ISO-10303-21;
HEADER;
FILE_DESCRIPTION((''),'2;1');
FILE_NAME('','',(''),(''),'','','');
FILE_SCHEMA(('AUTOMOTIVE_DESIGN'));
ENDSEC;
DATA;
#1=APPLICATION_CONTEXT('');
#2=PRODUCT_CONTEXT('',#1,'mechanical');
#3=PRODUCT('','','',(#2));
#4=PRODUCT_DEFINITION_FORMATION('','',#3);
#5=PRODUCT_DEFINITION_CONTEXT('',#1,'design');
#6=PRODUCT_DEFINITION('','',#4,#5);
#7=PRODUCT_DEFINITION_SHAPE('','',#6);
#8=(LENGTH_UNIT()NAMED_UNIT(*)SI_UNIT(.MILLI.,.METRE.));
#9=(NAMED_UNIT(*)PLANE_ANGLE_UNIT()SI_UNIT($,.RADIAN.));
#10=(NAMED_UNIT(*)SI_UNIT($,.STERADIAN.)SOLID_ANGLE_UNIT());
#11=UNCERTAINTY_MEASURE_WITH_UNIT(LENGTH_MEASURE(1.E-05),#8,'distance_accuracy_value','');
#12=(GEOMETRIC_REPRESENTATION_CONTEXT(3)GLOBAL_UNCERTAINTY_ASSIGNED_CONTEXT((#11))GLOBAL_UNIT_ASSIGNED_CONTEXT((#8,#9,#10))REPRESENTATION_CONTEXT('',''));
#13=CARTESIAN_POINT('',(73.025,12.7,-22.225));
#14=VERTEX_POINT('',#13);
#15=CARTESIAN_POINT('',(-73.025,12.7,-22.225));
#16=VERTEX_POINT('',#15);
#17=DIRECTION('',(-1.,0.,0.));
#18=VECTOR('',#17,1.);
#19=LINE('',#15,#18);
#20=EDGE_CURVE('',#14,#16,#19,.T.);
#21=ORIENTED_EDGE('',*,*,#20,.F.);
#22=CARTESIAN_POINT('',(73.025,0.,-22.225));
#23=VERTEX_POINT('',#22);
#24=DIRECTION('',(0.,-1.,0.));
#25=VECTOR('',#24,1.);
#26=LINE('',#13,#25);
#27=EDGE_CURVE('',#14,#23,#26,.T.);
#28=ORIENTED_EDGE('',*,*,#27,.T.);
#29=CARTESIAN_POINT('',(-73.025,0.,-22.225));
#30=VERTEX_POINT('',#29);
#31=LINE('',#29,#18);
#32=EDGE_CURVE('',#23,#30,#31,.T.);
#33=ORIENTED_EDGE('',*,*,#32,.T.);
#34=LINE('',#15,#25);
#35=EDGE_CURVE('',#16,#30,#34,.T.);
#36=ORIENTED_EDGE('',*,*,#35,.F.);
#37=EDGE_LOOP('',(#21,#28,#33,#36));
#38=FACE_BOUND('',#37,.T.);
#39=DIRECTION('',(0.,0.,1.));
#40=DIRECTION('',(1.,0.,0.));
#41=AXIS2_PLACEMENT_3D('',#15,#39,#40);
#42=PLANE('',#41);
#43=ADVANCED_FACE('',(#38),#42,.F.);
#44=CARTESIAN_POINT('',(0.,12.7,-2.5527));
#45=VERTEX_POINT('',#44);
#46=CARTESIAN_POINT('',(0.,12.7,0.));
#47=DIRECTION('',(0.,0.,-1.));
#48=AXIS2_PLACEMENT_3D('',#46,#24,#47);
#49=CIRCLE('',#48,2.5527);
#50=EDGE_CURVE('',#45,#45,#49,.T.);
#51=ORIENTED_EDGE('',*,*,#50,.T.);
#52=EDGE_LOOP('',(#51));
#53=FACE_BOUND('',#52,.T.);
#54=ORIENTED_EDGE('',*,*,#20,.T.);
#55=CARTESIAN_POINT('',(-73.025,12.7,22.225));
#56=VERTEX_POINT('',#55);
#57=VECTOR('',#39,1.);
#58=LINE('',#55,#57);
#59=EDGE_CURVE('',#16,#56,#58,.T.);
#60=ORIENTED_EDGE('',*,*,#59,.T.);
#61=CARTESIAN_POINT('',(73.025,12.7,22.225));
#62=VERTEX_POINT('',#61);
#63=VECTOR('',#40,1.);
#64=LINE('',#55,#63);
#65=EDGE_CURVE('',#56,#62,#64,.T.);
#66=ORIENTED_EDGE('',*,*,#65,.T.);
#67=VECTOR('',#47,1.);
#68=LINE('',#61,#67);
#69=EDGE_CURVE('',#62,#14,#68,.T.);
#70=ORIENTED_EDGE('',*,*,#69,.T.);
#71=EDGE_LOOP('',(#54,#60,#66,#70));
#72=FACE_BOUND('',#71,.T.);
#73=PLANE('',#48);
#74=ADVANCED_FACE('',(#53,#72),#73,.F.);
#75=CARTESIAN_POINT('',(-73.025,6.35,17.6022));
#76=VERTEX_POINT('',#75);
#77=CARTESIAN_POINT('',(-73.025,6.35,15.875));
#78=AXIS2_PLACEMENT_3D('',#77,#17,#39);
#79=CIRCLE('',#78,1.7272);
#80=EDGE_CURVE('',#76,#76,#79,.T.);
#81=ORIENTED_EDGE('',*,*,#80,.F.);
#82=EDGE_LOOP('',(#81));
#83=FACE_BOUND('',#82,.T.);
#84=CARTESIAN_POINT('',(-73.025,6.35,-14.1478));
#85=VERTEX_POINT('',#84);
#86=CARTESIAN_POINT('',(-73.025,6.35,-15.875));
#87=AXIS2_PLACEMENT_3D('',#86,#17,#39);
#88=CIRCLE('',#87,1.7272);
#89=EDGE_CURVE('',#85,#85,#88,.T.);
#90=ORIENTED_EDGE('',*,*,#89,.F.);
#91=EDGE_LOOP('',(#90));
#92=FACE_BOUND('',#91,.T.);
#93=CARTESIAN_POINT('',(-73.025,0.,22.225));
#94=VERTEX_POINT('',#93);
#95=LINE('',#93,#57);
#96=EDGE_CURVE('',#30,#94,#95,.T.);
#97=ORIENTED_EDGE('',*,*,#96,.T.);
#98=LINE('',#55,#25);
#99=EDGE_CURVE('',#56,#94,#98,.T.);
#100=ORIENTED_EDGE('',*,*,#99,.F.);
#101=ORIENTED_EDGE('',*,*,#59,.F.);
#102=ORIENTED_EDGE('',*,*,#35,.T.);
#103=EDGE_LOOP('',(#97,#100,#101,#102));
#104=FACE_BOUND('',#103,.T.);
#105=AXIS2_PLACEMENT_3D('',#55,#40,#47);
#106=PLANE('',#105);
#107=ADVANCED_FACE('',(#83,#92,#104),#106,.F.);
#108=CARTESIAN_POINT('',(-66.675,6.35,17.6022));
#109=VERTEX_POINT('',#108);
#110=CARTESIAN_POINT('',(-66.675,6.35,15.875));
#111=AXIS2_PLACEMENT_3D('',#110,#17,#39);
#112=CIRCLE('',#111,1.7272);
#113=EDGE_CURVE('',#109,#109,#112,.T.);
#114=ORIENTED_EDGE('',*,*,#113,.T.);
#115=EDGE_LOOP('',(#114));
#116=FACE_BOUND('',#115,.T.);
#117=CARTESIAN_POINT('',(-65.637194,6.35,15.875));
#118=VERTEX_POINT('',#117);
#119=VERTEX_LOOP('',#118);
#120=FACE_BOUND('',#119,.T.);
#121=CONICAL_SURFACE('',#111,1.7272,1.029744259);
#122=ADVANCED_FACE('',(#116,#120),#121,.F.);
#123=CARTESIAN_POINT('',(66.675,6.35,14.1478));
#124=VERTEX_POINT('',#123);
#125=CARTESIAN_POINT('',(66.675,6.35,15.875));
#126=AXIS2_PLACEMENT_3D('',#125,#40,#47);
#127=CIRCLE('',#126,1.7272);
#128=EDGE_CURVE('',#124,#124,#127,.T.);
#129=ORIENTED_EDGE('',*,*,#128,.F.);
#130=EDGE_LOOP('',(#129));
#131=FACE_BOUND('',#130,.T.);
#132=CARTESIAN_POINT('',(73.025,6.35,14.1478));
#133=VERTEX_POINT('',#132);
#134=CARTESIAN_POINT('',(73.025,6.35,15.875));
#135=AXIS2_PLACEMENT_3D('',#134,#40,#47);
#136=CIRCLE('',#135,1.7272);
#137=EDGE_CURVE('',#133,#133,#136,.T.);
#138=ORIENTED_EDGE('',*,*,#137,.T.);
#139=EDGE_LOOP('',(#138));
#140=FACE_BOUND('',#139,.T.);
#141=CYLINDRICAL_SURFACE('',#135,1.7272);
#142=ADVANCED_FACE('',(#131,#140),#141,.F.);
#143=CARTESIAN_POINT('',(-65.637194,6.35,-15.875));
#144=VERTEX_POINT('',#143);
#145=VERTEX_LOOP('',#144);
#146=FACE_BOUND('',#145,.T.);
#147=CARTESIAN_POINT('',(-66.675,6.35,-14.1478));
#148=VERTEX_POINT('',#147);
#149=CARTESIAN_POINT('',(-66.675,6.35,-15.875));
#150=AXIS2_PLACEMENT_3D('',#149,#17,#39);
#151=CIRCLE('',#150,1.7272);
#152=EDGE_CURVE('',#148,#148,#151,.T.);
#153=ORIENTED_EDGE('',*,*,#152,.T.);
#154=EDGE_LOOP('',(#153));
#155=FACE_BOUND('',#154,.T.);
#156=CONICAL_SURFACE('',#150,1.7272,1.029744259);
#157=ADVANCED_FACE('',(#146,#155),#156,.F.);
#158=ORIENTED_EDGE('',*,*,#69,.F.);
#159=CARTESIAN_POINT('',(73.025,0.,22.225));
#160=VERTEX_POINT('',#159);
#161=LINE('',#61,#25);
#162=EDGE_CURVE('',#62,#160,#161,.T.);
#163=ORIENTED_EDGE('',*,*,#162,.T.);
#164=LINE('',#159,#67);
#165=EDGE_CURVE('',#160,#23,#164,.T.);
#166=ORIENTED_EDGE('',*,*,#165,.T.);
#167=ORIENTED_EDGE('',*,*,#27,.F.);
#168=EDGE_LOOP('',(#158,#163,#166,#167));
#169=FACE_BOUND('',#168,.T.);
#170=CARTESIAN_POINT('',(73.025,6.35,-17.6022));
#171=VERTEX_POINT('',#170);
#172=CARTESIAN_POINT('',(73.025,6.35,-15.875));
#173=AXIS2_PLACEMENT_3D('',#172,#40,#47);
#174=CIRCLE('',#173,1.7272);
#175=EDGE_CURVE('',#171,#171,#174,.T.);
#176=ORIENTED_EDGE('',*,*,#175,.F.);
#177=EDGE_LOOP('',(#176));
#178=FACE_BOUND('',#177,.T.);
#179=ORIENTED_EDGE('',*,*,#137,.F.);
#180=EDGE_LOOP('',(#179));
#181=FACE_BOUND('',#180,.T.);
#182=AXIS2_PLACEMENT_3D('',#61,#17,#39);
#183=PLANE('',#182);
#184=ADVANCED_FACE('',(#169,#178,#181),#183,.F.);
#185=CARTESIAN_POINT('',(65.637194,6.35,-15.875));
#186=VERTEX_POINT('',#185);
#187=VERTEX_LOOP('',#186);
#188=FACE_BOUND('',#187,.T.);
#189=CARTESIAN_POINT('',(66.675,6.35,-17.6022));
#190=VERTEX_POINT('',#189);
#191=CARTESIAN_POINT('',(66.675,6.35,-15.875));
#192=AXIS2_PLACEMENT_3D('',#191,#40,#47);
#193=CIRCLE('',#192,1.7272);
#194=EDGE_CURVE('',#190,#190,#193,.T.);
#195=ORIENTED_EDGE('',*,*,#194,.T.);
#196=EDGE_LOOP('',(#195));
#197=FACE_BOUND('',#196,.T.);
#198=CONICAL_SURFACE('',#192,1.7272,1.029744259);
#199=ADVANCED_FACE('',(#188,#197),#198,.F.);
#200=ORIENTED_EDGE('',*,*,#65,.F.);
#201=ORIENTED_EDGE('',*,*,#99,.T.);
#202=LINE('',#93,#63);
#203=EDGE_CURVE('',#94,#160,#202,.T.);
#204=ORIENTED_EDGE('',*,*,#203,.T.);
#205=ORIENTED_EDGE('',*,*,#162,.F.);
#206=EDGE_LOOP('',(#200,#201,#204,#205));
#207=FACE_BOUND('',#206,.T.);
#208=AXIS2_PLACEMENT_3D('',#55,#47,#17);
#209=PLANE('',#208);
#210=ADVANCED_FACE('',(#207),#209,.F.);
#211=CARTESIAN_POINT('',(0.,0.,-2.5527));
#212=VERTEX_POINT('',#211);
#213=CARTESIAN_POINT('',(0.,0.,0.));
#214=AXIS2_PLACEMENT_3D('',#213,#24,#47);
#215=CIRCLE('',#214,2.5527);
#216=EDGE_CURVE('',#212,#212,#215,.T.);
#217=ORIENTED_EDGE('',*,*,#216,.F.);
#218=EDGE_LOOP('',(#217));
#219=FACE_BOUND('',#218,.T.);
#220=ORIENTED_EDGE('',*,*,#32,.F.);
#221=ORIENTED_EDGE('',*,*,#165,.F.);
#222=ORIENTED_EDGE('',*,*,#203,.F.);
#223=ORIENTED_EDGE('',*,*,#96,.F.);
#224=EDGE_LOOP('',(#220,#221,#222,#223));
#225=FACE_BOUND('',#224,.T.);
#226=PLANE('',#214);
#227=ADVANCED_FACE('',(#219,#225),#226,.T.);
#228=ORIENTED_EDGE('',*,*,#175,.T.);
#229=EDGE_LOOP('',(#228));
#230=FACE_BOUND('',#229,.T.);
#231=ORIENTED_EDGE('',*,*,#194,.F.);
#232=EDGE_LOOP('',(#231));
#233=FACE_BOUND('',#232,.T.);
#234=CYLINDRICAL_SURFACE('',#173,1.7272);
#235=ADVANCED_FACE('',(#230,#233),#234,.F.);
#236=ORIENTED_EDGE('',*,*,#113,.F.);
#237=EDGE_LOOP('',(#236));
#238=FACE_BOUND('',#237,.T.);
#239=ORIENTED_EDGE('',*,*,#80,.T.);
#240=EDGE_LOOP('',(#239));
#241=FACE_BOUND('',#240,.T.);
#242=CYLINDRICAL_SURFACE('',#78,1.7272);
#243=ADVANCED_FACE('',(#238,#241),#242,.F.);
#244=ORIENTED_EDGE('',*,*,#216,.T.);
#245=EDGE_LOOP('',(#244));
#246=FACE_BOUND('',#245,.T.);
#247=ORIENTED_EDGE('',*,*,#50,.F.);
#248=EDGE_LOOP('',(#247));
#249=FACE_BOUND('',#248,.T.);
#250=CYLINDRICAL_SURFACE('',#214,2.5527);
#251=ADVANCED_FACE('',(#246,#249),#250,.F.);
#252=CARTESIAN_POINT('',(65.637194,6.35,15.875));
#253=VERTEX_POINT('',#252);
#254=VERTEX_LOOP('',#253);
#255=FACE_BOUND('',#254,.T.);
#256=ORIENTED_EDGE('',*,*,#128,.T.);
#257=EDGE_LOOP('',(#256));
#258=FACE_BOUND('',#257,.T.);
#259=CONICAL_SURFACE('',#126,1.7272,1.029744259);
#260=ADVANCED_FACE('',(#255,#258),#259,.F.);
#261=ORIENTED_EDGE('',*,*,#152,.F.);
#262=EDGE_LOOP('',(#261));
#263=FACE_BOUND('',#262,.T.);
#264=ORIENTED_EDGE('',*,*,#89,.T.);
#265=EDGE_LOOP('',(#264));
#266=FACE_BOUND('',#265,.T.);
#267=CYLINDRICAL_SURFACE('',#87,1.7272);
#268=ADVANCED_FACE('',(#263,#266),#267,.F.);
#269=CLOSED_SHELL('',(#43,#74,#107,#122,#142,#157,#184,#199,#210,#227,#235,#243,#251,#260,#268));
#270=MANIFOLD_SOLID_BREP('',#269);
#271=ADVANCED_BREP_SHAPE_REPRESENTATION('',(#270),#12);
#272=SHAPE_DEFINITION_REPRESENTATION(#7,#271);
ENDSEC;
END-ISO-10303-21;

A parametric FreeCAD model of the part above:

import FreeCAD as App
import Part
import Sketcher

V = App.Vector
Q = App.Units.Quantity


def add_polygon(sketch, points):
    """Adds a closed chain of lines whose ends are joined by coincident constraints."""
    first, n = sketch.GeometryCount, len(points)
    for a, b in zip(points, points[1:] + points[:1]):
        sketch.addGeometry(Part.LineSegment(App.Vector(*a, 0), App.Vector(*b, 0)), False)
    for i in range(n):
        sketch.addConstraint(Sketcher.Constraint("Coincident", first + i, 2, first + (i + 1) % n, 1))

doc = App.newDocument("Part")
body = doc.addObject("PartDesign::Body", "Body")

sketch1 = doc.addObject("Sketcher::SketchObject", "Sketch")
body.addObject(sketch1)
sketch1.AttachmentSupport = (doc.XZ_Plane, [""])
sketch1.MapMode = "FlatFace"
add_polygon(sketch1, [(-73, -22), (-73, 22), (73, 22), (73, -22)])
sketch1.addConstraint(Sketcher.Constraint("Vertical", 0))
sketch1.addConstraint(Sketcher.Constraint("Horizontal", 1))
sketch1.addConstraint(Sketcher.Constraint("Vertical", 2))
sketch1.addConstraint(Sketcher.Constraint("Horizontal", 3))
sketch1.addConstraint(Sketcher.Constraint("Symmetric", 0, 2, 2, 2, -1, 1))
sketch1.addConstraint(Sketcher.Constraint("DistanceX", 1, 1, 1, 2, Q("5.75 in")))
sketch1.addConstraint(Sketcher.Constraint("DistanceY", 0, 1, 0, 2, Q("1.75 in")))
pad1 = doc.addObject("PartDesign::Pad", "Pad")
body.addObject(pad1)
pad1.Profile = sketch1
pad1.Length = Q("0.5 in")
pad1.Reversed = True

sketch2 = doc.addObject("Sketcher::SketchObject", "Sketch001")
body.addObject(sketch2)
sketch2.AttachmentSupport = (doc.XZ_Plane, [""])
sketch2.MapMode = "FlatFace"
sketch2.addGeometry(Part.Circle(V(0, 0, 0), V(0, 0, 1), 2.6), False)
sketch2.addConstraint(Sketcher.Constraint("Coincident", 0, 3, -1, 1))
sketch2.addConstraint(Sketcher.Constraint("Diameter", 0, Q("0.201 in")))
doc.recompute()
hole = doc.addObject("PartDesign::Hole", "Hole")
body.addObject(hole)
hole.Profile = sketch2
hole.ThreadType = "None"
hole.Diameter = Q("0.201 in")
hole.DepthType = "ThroughAll"

sketch3 = doc.addObject("Sketcher::SketchObject", "Sketch002")
body.addObject(sketch3)
sketch3.AttachmentSupport = (doc.XZ_Plane, [""])
sketch3.MapMode = "FlatFace"
sketch3.AttachmentOffset = App.Placement(V(0, 0, -0.25 * 25.4), App.Rotation())
add_polygon(sketch3, [(-65.6, -15.9), (-73, -15.9), (-73, -14.1), (-66.7, -14.1)])
sketch3.addGeometry(Part.LineSegment(V(-73, -15.9, 0), V(-65.6, -15.9, 0)), True)
sketch3.addConstraint(Sketcher.Constraint("Horizontal", 0))
sketch3.addConstraint(Sketcher.Constraint("Vertical", 1))
sketch3.addConstraint(Sketcher.Constraint("Horizontal", 2))
sketch3.addConstraint(Sketcher.Constraint("Horizontal", 4))
sketch3.addConstraint(Sketcher.Constraint("Coincident", 4, 1, 0, 2))
sketch3.addConstraint(Sketcher.Constraint("Equal", 0, 4))
sketch3.addConstraint(Sketcher.Constraint("Angle", 3, Q("-59 deg")))
sketch3.addConstraint(Sketcher.Constraint("DistanceX", 2, 1, 2, 2, Q("0.25 in")))
sketch3.addConstraint(Sketcher.Constraint("DistanceY", 1, 1, 1, 2, Q("0.068 in")))
sketch3.addConstraint(Sketcher.Constraint("DistanceX", 0, 2, -1, 1, Q("2.875 in")))
sketch3.addConstraint(Sketcher.Constraint("DistanceY", 0, 2, -1, 1, Q("0.625 in")))
groove = doc.addObject("PartDesign::Groove", "Groove")
body.addObject(groove)
groove.Profile = sketch3
groove.ReferenceAxis = (sketch3, ["Axis0"])
groove.Angle = 360
doc.recompute()

linearpattern = doc.addObject("PartDesign::LinearPattern", "LinearPattern")
body.addObject(linearpattern)
linearpattern.Originals = [groove]
linearpattern.Direction = (doc.Z_Axis, [""])
linearpattern.Mode = "offset"
linearpattern.Offset = Q("1.25 in")
linearpattern.Occurrences = 2
body.Tip = linearpattern
doc.recompute()

mirrored = doc.addObject("PartDesign::Mirrored", "Mirrored")
body.addObject(mirrored)
mirrored.Originals = [groove]
mirrored.MirrorPlane = (doc.YZ_Plane, [""])
body.Tip = mirrored

sketch4 = doc.addObject("Sketcher::SketchObject", "Sketch003")
body.addObject(sketch4)
sketch4.AttachmentSupport = (doc.XZ_Plane, [""])
sketch4.MapMode = "FlatFace"
sketch4.AttachmentOffset = App.Placement(V(0, 0, -0.25 * 25.4), App.Rotation())
add_polygon(sketch4, [(73, 15.9), (65.6, 15.9), (66.7, 17.6), (73, 17.6)])
sketch4.addGeometry(Part.LineSegment(V(65.6, 15.9, 0), V(73, 15.9, 0)), True)
sketch4.addConstraint(Sketcher.Constraint("Horizontal", 0))
sketch4.addConstraint(Sketcher.Constraint("Horizontal", 2))
sketch4.addConstraint(Sketcher.Constraint("Vertical", 3))
sketch4.addConstraint(Sketcher.Constraint("Horizontal", 4))
sketch4.addConstraint(Sketcher.Constraint("Coincident", 4, 1, 0, 2))
sketch4.addConstraint(Sketcher.Constraint("Vertical", 2, 2, 4, 2))
sketch4.addConstraint(Sketcher.Constraint("Angle", 1, Q("59 deg")))
sketch4.addConstraint(Sketcher.Constraint("DistanceX", 2, 1, 2, 2, Q("0.25 in")))
sketch4.addConstraint(Sketcher.Constraint("DistanceY", 3, 2, 3, 1, Q("0.068 in")))
sketch4.addConstraint(Sketcher.Constraint("DistanceY", -1, 1, 0, 2, Q("0.625 in")))
sketch4.addConstraint(Sketcher.Constraint("DistanceX", -1, 1, 1, 2, Q("2.625 in")))
groove2 = doc.addObject("PartDesign::Groove", "Groove001")
body.addObject(groove2)
groove2.Profile = sketch4
groove2.ReferenceAxis = (sketch4, ["Axis0"])
groove2.Angle = 360

doc.recompute()
